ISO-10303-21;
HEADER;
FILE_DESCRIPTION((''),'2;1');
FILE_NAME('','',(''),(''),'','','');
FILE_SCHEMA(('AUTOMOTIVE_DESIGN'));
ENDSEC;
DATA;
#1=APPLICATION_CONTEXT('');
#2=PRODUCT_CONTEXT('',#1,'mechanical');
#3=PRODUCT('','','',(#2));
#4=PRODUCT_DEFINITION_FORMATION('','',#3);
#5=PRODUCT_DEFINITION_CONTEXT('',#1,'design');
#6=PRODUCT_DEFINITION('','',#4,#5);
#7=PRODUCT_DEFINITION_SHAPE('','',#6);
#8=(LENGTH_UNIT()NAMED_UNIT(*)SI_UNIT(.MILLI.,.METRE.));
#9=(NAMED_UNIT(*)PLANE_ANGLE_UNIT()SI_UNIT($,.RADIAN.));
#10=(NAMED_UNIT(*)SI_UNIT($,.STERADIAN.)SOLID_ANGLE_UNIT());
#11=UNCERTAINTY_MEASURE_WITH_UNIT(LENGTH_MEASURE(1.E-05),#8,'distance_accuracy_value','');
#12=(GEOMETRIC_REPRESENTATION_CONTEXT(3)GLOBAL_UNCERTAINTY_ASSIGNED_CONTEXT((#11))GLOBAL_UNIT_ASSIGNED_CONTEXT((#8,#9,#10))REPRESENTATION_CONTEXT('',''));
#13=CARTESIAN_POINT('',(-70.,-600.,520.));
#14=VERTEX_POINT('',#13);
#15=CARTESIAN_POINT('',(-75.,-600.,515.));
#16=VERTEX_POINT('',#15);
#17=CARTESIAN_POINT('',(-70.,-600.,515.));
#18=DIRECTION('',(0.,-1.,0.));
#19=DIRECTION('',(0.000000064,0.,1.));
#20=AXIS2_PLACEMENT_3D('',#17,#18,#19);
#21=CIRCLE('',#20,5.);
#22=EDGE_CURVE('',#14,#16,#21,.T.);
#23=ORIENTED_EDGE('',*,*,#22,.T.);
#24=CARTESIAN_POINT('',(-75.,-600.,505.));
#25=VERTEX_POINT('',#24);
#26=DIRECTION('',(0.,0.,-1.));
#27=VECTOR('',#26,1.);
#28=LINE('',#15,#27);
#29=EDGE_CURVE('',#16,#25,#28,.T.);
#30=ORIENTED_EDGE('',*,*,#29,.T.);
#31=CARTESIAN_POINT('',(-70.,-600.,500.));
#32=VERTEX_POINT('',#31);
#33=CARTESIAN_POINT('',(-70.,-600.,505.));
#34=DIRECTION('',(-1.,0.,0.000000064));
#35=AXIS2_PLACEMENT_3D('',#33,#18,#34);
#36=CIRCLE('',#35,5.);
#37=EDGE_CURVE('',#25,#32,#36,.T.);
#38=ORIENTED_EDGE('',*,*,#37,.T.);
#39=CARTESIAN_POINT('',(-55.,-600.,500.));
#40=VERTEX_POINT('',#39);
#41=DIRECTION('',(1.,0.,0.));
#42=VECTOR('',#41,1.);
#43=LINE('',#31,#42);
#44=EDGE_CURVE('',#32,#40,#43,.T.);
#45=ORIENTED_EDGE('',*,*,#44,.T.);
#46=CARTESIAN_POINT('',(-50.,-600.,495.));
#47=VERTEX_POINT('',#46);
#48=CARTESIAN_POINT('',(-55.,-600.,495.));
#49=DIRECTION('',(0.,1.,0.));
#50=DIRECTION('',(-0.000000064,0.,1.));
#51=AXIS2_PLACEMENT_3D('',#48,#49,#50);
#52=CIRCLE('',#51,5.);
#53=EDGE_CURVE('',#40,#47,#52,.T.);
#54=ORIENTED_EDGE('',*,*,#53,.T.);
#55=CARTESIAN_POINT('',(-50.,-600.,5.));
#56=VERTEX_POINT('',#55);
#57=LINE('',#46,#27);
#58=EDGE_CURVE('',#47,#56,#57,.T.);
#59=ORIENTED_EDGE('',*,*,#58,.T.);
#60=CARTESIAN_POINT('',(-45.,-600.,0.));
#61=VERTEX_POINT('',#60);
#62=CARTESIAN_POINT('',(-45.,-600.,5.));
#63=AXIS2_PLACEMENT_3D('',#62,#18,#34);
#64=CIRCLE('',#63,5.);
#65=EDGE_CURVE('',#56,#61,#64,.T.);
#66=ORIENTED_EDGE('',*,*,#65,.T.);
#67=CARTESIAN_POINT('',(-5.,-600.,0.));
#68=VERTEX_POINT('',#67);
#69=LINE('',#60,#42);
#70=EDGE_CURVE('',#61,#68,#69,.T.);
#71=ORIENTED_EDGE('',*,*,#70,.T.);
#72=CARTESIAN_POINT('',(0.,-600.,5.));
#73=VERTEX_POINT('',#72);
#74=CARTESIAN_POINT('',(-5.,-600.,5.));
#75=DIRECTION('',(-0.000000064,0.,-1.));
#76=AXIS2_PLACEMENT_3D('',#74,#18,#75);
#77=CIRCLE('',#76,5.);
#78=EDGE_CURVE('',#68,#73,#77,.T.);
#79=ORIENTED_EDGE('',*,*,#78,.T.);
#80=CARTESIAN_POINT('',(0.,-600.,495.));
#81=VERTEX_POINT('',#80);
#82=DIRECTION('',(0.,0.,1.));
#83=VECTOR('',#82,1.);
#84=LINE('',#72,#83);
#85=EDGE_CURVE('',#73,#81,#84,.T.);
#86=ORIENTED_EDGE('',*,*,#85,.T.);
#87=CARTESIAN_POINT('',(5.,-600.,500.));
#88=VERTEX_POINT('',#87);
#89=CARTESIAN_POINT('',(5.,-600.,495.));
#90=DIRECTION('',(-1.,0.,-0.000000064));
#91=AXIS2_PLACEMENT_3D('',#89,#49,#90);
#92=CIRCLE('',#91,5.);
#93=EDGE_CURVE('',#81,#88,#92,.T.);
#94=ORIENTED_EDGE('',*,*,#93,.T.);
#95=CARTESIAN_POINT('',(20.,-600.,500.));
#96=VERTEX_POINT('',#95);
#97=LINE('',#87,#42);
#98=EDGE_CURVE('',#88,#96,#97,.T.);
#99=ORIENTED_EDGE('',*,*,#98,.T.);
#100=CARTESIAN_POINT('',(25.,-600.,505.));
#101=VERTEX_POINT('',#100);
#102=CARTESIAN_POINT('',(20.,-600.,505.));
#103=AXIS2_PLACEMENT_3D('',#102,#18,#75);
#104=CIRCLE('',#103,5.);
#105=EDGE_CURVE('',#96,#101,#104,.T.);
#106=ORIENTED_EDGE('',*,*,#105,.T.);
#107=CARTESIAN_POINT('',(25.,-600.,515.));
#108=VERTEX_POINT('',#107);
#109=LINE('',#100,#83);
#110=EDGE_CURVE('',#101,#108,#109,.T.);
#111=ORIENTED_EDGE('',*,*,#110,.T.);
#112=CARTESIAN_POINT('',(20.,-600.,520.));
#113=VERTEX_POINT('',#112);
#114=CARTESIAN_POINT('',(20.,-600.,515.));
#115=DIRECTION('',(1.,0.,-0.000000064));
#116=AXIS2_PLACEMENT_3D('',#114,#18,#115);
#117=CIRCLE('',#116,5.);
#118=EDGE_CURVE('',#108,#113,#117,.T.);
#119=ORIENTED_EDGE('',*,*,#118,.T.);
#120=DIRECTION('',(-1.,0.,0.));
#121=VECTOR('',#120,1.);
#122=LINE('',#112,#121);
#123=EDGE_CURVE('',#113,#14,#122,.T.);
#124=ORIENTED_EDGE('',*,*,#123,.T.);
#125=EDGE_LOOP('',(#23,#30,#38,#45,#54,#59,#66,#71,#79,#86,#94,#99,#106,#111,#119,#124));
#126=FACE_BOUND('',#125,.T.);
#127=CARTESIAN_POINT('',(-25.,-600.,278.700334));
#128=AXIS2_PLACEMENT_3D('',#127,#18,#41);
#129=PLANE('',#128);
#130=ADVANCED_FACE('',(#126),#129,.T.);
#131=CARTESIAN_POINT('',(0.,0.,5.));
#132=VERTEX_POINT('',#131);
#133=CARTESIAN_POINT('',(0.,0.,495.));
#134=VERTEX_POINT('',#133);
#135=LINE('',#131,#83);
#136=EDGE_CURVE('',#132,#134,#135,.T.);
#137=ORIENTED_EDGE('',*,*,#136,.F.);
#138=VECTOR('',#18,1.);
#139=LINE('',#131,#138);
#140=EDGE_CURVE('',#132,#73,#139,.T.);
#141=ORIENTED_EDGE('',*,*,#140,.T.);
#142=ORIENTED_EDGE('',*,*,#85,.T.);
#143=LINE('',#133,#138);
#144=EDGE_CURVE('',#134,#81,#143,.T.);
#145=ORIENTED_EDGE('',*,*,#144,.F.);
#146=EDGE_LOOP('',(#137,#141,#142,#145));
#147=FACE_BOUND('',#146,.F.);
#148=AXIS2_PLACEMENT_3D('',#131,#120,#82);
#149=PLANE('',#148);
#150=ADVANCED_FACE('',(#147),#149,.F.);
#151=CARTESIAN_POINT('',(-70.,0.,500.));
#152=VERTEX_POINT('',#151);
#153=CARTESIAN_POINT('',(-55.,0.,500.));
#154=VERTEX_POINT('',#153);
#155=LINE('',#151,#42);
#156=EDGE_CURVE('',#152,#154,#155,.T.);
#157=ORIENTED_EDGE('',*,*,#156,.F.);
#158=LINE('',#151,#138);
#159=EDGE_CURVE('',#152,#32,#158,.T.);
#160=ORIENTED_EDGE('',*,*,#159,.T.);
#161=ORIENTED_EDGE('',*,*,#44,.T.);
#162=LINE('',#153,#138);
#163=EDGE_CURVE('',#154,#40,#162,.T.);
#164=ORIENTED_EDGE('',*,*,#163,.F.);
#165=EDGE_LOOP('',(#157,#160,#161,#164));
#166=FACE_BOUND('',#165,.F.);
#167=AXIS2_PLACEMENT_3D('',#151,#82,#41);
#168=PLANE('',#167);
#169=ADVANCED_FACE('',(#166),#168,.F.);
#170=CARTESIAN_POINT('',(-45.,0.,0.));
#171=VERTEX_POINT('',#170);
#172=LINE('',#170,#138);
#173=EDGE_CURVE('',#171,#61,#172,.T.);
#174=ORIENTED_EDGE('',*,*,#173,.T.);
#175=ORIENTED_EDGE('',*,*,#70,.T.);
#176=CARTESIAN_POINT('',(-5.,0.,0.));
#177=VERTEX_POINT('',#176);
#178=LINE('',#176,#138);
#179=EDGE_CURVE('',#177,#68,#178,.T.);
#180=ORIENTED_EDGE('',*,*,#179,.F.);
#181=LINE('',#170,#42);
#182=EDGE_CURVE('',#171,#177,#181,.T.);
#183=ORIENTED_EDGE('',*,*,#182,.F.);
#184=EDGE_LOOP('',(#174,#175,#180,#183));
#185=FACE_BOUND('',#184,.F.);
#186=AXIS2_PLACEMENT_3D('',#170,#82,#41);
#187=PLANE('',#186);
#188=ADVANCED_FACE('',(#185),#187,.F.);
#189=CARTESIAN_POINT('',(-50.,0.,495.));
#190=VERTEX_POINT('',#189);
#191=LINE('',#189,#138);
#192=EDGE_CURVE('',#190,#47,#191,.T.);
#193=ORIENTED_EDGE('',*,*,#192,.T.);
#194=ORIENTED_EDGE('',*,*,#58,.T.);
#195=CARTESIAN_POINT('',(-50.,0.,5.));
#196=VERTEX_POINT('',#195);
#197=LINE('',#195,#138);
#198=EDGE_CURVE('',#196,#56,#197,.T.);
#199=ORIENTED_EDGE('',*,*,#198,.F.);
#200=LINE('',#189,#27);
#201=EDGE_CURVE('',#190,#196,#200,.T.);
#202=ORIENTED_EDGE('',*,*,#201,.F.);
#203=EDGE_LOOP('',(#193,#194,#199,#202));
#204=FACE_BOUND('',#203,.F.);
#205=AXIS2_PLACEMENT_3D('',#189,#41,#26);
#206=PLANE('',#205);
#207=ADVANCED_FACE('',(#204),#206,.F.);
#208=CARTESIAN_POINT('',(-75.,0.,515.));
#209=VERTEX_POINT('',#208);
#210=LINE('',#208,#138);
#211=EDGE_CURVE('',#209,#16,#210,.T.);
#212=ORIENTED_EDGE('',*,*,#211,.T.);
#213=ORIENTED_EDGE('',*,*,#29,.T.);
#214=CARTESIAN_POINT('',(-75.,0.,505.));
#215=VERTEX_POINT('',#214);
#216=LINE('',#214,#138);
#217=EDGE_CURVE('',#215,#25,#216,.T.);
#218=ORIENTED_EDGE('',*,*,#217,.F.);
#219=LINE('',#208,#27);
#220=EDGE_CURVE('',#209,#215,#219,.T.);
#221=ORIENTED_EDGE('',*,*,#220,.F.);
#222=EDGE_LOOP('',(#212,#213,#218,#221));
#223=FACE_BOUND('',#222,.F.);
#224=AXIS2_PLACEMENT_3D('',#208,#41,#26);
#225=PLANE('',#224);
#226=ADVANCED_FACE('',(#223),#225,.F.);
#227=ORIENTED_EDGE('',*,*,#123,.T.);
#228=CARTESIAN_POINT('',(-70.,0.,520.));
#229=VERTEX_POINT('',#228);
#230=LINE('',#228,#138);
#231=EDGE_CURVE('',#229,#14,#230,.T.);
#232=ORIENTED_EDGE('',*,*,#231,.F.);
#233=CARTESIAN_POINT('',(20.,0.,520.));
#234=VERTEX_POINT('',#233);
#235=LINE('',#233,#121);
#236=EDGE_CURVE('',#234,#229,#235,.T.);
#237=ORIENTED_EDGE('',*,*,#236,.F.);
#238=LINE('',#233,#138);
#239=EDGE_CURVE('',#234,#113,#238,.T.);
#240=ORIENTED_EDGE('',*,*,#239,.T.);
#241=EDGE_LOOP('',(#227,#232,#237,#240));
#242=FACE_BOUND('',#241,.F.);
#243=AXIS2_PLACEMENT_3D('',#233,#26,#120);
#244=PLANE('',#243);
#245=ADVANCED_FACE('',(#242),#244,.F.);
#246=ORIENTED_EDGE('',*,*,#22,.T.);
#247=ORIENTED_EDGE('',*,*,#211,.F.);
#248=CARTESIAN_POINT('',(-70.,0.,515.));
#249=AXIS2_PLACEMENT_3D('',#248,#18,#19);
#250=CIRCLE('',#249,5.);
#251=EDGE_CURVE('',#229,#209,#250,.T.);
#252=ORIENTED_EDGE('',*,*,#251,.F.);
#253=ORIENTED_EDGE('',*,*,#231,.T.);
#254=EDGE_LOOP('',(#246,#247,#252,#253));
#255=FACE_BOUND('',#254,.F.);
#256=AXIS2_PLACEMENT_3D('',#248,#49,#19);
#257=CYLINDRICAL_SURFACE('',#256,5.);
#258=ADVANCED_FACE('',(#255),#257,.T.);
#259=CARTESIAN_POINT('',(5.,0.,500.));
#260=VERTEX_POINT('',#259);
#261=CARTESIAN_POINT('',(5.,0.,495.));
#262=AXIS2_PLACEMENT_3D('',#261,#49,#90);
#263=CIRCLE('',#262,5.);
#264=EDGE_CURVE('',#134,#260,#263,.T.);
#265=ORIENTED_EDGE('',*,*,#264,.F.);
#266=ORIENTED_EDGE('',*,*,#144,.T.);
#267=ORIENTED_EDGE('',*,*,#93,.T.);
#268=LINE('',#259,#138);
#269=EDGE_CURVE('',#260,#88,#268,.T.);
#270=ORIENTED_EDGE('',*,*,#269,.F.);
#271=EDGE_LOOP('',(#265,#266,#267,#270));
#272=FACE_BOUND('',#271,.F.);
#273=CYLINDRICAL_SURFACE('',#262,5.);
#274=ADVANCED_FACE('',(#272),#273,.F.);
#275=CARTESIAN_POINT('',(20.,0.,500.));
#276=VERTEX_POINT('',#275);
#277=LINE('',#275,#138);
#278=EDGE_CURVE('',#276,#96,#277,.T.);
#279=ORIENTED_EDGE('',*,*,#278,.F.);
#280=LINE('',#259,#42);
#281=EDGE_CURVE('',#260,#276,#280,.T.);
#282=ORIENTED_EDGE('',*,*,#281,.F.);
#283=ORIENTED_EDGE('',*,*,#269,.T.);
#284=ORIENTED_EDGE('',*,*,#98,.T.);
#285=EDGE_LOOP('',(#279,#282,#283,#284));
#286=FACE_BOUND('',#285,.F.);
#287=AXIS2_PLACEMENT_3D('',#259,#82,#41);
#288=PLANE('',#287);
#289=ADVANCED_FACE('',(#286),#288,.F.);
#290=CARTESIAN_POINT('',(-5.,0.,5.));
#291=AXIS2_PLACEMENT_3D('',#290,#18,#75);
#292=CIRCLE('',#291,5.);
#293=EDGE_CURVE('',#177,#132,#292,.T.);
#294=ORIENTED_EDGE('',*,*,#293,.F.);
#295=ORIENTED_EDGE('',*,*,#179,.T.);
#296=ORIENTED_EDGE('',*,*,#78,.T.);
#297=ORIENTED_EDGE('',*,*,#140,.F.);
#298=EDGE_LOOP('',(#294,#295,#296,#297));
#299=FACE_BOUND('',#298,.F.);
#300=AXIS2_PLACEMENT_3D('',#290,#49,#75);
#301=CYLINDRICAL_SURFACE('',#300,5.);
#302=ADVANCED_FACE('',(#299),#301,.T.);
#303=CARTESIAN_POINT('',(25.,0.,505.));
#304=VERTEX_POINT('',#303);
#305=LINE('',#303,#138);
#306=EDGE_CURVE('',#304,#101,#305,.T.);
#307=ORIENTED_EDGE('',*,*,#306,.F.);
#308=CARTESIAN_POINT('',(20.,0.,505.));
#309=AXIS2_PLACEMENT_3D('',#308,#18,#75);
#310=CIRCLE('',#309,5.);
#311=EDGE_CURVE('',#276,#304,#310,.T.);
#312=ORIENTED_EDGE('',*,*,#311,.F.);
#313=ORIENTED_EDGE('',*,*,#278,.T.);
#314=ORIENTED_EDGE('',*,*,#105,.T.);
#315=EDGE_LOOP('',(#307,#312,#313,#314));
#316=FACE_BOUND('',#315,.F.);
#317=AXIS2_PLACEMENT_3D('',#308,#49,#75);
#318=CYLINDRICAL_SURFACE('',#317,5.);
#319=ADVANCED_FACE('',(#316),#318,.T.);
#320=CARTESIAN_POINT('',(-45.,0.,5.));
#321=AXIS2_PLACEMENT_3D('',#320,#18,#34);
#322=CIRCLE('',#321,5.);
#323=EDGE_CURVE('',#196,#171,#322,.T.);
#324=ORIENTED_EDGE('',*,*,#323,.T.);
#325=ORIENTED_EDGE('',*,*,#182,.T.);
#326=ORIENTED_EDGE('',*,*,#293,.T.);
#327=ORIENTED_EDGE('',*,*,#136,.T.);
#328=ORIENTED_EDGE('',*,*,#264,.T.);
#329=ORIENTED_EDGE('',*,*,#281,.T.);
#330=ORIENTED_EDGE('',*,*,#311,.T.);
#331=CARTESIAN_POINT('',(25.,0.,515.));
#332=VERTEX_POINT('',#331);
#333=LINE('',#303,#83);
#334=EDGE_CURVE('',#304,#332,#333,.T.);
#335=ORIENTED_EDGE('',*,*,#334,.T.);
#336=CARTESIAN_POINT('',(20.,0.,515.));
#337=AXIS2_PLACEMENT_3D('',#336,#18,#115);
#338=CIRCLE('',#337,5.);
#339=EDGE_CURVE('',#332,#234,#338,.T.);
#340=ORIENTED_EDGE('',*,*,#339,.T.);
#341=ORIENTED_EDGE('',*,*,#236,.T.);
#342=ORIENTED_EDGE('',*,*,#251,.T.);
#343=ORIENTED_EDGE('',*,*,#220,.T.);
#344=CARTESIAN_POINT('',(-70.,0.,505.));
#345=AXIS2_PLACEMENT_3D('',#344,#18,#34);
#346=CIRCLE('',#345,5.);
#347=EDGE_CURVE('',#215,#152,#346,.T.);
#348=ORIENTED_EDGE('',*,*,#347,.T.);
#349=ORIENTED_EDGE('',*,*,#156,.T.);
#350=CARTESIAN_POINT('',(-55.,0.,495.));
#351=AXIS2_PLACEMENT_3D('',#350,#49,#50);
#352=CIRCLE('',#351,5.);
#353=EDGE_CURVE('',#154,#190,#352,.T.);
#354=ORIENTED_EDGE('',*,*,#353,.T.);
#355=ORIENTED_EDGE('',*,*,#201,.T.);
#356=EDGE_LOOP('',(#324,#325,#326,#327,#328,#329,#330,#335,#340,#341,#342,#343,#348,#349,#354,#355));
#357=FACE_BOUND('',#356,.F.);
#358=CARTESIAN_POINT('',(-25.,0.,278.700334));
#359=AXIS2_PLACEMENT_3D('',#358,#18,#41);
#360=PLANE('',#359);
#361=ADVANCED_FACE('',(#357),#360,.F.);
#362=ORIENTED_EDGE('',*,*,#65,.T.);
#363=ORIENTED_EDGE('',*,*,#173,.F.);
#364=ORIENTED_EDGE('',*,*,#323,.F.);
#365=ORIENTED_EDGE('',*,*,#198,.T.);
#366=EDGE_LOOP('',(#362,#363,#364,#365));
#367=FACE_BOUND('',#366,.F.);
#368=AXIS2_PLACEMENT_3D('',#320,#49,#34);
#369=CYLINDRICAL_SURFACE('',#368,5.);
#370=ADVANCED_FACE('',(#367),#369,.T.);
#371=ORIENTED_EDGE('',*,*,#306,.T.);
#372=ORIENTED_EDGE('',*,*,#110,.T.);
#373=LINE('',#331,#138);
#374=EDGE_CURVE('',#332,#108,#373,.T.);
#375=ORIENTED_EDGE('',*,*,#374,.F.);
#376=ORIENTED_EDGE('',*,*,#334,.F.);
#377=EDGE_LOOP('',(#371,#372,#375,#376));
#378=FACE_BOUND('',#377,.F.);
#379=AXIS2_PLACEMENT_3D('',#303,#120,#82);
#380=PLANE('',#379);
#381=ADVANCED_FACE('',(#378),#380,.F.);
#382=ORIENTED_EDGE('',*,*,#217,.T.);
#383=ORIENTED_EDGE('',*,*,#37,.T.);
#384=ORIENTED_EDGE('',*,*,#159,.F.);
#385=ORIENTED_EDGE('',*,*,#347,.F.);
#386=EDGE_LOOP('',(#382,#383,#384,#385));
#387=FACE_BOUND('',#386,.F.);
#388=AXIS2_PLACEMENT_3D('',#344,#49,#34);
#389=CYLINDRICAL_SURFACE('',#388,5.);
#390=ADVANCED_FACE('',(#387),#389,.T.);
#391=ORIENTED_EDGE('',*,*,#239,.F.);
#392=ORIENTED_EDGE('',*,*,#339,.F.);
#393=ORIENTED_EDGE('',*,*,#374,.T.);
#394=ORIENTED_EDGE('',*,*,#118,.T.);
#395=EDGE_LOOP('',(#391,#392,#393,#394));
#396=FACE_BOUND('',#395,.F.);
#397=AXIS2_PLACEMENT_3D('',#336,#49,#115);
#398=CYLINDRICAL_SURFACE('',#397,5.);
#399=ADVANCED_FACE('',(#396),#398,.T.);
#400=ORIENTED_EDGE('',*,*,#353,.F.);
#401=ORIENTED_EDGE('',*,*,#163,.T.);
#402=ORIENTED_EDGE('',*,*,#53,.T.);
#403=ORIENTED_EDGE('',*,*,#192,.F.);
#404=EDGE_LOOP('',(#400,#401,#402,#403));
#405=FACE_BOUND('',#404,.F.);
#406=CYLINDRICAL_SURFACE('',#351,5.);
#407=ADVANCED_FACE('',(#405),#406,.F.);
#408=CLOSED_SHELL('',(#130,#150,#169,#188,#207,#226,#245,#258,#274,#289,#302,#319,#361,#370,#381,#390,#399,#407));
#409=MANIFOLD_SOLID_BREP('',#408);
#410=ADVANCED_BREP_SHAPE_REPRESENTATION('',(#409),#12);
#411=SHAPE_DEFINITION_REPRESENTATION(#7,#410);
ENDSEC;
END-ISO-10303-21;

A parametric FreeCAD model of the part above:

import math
import FreeCAD as App
import Part
import Sketcher

V = App.Vector
Q = App.Units.Quantity

doc = App.newDocument("Part")
params = doc.addObject("Spreadsheet::Sheet", "Params")
for row, (alias, value) in enumerate([
    ("sketch1_radius", "5 mm"),
    ("sketch1_width", "40 mm"),
    ("sketch1_width2", "15 mm"),
    ("sketch1_height", "490 mm"),
    ("sketch1_height2", "10 mm"),
    ("pad1_length", "600 mm"),
], start=1):
    params.set(f"A{row}", alias)
    params.set(f"B{row}", "=" + value)
    params.setAlias(f"B{row}", alias)

body = doc.addObject("PartDesign::Body", "Body")

sketch1 = body.newObject("Sketcher::SketchObject", "Sketch")
sketch1.AttachmentSupport = (doc.getObject("XZ_Plane"), [""])
sketch1.MapMode = "FlatFace"
sketch1.addGeometry(Part.LineSegment(V(-45, 0, 0), V(-5, 0, 0)), False)
sketch1.addGeometry(Part.ArcOfCircle(Part.Circle(V(-5, 5, 0), V(0, 0, 1), 5), math.radians(-90), math.radians(0)), False)
sketch1.addGeometry(Part.LineSegment(V(0, 5, 0), V(0, 495, 0)), False)
sketch1.addGeometry(Part.ArcOfCircle(Part.Circle(V(5, 495, 0), V(0, 0, 1), 5), math.radians(90), math.radians(180)), False)
sketch1.addGeometry(Part.LineSegment(V(5, 500, 0), V(20, 500, 0)), False)
sketch1.addGeometry(Part.ArcOfCircle(Part.Circle(V(20, 505, 0), V(0, 0, 1), 5), math.radians(-90), math.radians(0)), False)
sketch1.addGeometry(Part.LineSegment(V(25, 505, 0), V(25, 515, 0)), False)
sketch1.addGeometry(Part.ArcOfCircle(Part.Circle(V(20, 515, 0), V(0, 0, 1), 5), math.radians(0), math.radians(90)), False)
sketch1.addGeometry(Part.LineSegment(V(20, 520, 0), V(-70, 520, 0)), False)
sketch1.addGeometry(Part.ArcOfCircle(Part.Circle(V(-70, 515, 0), V(0, 0, 1), 5), math.radians(90), math.radians(180)), False)
sketch1.addGeometry(Part.LineSegment(V(-75, 515, 0), V(-75, 505, 0)), False)
sketch1.addGeometry(Part.ArcOfCircle(Part.Circle(V(-70, 505, 0), V(0, 0, 1), 5), math.radians(180), math.radians(270)), False)
sketch1.addGeometry(Part.LineSegment(V(-70, 500, 0), V(-55, 500, 0)), False)
sketch1.addGeometry(Part.ArcOfCircle(Part.Circle(V(-55, 495, 0), V(0, 0, 1), 5), math.radians(0), math.radians(90)), False)
sketch1.addGeometry(Part.LineSegment(V(-50, 495, 0), V(-50, 5, 0)), False)
sketch1.addGeometry(Part.ArcOfCircle(Part.Circle(V(-45, 5, 0), V(0, 0, 1), 5), math.radians(180), math.radians(270)), False)
sketch1.addConstraint(Sketcher.Constraint("Tangent", 0, 2, 1, 1))
sketch1.addConstraint(Sketcher.Constraint("Tangent", 1, 2, 2, 1))
sketch1.addConstraint(Sketcher.Constraint("Tangent", 2, 2, 3, 2))
sketch1.addConstraint(Sketcher.Constraint("Tangent", 3, 1, 4, 1))
sketch1.addConstraint(Sketcher.Constraint("Tangent", 4, 2, 5, 1))
sketch1.addConstraint(Sketcher.Constraint("Tangent", 5, 2, 6, 1))
sketch1.addConstraint(Sketcher.Constraint("Tangent", 6, 2, 7, 1))
sketch1.addConstraint(Sketcher.Constraint("Tangent", 7, 2, 8, 1))
sketch1.addConstraint(Sketcher.Constraint("Tangent", 8, 2, 9, 1))
sketch1.addConstraint(Sketcher.Constraint("Tangent", 9, 2, 10, 1))
sketch1.addConstraint(Sketcher.Constraint("Tangent", 10, 2, 11, 1))
sketch1.addConstraint(Sketcher.Constraint("Tangent", 11, 2, 12, 1))
sketch1.addConstraint(Sketcher.Constraint("Tangent", 12, 2, 13, 2))
sketch1.addConstraint(Sketcher.Constraint("Tangent", 13, 1, 14, 1))
sketch1.addConstraint(Sketcher.Constraint("Tangent", 14, 2, 15, 1))
sketch1.addConstraint(Sketcher.Constraint("Tangent", 15, 2, 0, 1))
sketch1.addConstraint(Sketcher.Constraint("Horizontal", 0))
sketch1.addConstraint(Sketcher.Constraint("Vertical", 2))
sketch1.addConstraint(Sketcher.Constraint("Horizontal", 4))
sketch1.addConstraint(Sketcher.Constraint("Vertical", 6))
sketch1.addConstraint(Sketcher.Constraint("Horizontal", 8))
sketch1.addConstraint(Sketcher.Constraint("Vertical", 10))
sketch1.addConstraint(Sketcher.Constraint("Horizontal", 12))
sketch1.addConstraint(Sketcher.Constraint("Vertical", 14))
sketch1.addConstraint(Sketcher.Constraint("Equal", 1, 3))
sketch1.addConstraint(Sketcher.Constraint("Equal", 3, 5))
sketch1.addConstraint(Sketcher.Constraint("Equal", 5, 7))
sketch1.addConstraint(Sketcher.Constraint("Equal", 7, 9))
sketch1.addConstraint(Sketcher.Constraint("Equal", 9, 11))
sketch1.addConstraint(Sketcher.Constraint("Equal", 11, 13))
sketch1.addConstraint(Sketcher.Constraint("Equal", 13, 15))
sketch1.addConstraint(Sketcher.Constraint("PointOnObject", 0, 2, -1))
sketch1.addConstraint(Sketcher.Constraint("PointOnObject", 1, 2, -2))
sketch1.addConstraint(Sketcher.Constraint("Horizontal", 5, 3, 11, 3))
sketch1.addConstraint(Sketcher.Constraint("Equal", 4, 12))
sketch1.addConstraint(Sketcher.Constraint("Radius", 1, Q("5 mm")))
sketch1.addConstraint(Sketcher.Constraint("DistanceX", 0, 1, 0, 2, Q("40 mm")))
sketch1.addConstraint(Sketcher.Constraint("DistanceX", 4, 1, 4, 2, Q("15 mm")))
sketch1.addConstraint(Sketcher.Constraint("DistanceY", 2, 1, 2, 2, Q("490 mm")))
sketch1.addConstraint(Sketcher.Constraint("DistanceY", 6, 1, 6, 2, Q("10 mm")))
sketch1.setExpression("Constraints[35]", "Params.sketch1_radius")
sketch1.setExpression("Constraints[36]", "Params.sketch1_width")
sketch1.setExpression("Constraints[37]", "Params.sketch1_width2")
sketch1.setExpression("Constraints[38]", "Params.sketch1_height")
sketch1.setExpression("Constraints[39]", "Params.sketch1_height2")
pad1 = body.newObject("PartDesign::Pad", "Pad")
pad1.Profile = sketch1
pad1.setExpression("Length", "Params.pad1_length")

doc.recompute()
